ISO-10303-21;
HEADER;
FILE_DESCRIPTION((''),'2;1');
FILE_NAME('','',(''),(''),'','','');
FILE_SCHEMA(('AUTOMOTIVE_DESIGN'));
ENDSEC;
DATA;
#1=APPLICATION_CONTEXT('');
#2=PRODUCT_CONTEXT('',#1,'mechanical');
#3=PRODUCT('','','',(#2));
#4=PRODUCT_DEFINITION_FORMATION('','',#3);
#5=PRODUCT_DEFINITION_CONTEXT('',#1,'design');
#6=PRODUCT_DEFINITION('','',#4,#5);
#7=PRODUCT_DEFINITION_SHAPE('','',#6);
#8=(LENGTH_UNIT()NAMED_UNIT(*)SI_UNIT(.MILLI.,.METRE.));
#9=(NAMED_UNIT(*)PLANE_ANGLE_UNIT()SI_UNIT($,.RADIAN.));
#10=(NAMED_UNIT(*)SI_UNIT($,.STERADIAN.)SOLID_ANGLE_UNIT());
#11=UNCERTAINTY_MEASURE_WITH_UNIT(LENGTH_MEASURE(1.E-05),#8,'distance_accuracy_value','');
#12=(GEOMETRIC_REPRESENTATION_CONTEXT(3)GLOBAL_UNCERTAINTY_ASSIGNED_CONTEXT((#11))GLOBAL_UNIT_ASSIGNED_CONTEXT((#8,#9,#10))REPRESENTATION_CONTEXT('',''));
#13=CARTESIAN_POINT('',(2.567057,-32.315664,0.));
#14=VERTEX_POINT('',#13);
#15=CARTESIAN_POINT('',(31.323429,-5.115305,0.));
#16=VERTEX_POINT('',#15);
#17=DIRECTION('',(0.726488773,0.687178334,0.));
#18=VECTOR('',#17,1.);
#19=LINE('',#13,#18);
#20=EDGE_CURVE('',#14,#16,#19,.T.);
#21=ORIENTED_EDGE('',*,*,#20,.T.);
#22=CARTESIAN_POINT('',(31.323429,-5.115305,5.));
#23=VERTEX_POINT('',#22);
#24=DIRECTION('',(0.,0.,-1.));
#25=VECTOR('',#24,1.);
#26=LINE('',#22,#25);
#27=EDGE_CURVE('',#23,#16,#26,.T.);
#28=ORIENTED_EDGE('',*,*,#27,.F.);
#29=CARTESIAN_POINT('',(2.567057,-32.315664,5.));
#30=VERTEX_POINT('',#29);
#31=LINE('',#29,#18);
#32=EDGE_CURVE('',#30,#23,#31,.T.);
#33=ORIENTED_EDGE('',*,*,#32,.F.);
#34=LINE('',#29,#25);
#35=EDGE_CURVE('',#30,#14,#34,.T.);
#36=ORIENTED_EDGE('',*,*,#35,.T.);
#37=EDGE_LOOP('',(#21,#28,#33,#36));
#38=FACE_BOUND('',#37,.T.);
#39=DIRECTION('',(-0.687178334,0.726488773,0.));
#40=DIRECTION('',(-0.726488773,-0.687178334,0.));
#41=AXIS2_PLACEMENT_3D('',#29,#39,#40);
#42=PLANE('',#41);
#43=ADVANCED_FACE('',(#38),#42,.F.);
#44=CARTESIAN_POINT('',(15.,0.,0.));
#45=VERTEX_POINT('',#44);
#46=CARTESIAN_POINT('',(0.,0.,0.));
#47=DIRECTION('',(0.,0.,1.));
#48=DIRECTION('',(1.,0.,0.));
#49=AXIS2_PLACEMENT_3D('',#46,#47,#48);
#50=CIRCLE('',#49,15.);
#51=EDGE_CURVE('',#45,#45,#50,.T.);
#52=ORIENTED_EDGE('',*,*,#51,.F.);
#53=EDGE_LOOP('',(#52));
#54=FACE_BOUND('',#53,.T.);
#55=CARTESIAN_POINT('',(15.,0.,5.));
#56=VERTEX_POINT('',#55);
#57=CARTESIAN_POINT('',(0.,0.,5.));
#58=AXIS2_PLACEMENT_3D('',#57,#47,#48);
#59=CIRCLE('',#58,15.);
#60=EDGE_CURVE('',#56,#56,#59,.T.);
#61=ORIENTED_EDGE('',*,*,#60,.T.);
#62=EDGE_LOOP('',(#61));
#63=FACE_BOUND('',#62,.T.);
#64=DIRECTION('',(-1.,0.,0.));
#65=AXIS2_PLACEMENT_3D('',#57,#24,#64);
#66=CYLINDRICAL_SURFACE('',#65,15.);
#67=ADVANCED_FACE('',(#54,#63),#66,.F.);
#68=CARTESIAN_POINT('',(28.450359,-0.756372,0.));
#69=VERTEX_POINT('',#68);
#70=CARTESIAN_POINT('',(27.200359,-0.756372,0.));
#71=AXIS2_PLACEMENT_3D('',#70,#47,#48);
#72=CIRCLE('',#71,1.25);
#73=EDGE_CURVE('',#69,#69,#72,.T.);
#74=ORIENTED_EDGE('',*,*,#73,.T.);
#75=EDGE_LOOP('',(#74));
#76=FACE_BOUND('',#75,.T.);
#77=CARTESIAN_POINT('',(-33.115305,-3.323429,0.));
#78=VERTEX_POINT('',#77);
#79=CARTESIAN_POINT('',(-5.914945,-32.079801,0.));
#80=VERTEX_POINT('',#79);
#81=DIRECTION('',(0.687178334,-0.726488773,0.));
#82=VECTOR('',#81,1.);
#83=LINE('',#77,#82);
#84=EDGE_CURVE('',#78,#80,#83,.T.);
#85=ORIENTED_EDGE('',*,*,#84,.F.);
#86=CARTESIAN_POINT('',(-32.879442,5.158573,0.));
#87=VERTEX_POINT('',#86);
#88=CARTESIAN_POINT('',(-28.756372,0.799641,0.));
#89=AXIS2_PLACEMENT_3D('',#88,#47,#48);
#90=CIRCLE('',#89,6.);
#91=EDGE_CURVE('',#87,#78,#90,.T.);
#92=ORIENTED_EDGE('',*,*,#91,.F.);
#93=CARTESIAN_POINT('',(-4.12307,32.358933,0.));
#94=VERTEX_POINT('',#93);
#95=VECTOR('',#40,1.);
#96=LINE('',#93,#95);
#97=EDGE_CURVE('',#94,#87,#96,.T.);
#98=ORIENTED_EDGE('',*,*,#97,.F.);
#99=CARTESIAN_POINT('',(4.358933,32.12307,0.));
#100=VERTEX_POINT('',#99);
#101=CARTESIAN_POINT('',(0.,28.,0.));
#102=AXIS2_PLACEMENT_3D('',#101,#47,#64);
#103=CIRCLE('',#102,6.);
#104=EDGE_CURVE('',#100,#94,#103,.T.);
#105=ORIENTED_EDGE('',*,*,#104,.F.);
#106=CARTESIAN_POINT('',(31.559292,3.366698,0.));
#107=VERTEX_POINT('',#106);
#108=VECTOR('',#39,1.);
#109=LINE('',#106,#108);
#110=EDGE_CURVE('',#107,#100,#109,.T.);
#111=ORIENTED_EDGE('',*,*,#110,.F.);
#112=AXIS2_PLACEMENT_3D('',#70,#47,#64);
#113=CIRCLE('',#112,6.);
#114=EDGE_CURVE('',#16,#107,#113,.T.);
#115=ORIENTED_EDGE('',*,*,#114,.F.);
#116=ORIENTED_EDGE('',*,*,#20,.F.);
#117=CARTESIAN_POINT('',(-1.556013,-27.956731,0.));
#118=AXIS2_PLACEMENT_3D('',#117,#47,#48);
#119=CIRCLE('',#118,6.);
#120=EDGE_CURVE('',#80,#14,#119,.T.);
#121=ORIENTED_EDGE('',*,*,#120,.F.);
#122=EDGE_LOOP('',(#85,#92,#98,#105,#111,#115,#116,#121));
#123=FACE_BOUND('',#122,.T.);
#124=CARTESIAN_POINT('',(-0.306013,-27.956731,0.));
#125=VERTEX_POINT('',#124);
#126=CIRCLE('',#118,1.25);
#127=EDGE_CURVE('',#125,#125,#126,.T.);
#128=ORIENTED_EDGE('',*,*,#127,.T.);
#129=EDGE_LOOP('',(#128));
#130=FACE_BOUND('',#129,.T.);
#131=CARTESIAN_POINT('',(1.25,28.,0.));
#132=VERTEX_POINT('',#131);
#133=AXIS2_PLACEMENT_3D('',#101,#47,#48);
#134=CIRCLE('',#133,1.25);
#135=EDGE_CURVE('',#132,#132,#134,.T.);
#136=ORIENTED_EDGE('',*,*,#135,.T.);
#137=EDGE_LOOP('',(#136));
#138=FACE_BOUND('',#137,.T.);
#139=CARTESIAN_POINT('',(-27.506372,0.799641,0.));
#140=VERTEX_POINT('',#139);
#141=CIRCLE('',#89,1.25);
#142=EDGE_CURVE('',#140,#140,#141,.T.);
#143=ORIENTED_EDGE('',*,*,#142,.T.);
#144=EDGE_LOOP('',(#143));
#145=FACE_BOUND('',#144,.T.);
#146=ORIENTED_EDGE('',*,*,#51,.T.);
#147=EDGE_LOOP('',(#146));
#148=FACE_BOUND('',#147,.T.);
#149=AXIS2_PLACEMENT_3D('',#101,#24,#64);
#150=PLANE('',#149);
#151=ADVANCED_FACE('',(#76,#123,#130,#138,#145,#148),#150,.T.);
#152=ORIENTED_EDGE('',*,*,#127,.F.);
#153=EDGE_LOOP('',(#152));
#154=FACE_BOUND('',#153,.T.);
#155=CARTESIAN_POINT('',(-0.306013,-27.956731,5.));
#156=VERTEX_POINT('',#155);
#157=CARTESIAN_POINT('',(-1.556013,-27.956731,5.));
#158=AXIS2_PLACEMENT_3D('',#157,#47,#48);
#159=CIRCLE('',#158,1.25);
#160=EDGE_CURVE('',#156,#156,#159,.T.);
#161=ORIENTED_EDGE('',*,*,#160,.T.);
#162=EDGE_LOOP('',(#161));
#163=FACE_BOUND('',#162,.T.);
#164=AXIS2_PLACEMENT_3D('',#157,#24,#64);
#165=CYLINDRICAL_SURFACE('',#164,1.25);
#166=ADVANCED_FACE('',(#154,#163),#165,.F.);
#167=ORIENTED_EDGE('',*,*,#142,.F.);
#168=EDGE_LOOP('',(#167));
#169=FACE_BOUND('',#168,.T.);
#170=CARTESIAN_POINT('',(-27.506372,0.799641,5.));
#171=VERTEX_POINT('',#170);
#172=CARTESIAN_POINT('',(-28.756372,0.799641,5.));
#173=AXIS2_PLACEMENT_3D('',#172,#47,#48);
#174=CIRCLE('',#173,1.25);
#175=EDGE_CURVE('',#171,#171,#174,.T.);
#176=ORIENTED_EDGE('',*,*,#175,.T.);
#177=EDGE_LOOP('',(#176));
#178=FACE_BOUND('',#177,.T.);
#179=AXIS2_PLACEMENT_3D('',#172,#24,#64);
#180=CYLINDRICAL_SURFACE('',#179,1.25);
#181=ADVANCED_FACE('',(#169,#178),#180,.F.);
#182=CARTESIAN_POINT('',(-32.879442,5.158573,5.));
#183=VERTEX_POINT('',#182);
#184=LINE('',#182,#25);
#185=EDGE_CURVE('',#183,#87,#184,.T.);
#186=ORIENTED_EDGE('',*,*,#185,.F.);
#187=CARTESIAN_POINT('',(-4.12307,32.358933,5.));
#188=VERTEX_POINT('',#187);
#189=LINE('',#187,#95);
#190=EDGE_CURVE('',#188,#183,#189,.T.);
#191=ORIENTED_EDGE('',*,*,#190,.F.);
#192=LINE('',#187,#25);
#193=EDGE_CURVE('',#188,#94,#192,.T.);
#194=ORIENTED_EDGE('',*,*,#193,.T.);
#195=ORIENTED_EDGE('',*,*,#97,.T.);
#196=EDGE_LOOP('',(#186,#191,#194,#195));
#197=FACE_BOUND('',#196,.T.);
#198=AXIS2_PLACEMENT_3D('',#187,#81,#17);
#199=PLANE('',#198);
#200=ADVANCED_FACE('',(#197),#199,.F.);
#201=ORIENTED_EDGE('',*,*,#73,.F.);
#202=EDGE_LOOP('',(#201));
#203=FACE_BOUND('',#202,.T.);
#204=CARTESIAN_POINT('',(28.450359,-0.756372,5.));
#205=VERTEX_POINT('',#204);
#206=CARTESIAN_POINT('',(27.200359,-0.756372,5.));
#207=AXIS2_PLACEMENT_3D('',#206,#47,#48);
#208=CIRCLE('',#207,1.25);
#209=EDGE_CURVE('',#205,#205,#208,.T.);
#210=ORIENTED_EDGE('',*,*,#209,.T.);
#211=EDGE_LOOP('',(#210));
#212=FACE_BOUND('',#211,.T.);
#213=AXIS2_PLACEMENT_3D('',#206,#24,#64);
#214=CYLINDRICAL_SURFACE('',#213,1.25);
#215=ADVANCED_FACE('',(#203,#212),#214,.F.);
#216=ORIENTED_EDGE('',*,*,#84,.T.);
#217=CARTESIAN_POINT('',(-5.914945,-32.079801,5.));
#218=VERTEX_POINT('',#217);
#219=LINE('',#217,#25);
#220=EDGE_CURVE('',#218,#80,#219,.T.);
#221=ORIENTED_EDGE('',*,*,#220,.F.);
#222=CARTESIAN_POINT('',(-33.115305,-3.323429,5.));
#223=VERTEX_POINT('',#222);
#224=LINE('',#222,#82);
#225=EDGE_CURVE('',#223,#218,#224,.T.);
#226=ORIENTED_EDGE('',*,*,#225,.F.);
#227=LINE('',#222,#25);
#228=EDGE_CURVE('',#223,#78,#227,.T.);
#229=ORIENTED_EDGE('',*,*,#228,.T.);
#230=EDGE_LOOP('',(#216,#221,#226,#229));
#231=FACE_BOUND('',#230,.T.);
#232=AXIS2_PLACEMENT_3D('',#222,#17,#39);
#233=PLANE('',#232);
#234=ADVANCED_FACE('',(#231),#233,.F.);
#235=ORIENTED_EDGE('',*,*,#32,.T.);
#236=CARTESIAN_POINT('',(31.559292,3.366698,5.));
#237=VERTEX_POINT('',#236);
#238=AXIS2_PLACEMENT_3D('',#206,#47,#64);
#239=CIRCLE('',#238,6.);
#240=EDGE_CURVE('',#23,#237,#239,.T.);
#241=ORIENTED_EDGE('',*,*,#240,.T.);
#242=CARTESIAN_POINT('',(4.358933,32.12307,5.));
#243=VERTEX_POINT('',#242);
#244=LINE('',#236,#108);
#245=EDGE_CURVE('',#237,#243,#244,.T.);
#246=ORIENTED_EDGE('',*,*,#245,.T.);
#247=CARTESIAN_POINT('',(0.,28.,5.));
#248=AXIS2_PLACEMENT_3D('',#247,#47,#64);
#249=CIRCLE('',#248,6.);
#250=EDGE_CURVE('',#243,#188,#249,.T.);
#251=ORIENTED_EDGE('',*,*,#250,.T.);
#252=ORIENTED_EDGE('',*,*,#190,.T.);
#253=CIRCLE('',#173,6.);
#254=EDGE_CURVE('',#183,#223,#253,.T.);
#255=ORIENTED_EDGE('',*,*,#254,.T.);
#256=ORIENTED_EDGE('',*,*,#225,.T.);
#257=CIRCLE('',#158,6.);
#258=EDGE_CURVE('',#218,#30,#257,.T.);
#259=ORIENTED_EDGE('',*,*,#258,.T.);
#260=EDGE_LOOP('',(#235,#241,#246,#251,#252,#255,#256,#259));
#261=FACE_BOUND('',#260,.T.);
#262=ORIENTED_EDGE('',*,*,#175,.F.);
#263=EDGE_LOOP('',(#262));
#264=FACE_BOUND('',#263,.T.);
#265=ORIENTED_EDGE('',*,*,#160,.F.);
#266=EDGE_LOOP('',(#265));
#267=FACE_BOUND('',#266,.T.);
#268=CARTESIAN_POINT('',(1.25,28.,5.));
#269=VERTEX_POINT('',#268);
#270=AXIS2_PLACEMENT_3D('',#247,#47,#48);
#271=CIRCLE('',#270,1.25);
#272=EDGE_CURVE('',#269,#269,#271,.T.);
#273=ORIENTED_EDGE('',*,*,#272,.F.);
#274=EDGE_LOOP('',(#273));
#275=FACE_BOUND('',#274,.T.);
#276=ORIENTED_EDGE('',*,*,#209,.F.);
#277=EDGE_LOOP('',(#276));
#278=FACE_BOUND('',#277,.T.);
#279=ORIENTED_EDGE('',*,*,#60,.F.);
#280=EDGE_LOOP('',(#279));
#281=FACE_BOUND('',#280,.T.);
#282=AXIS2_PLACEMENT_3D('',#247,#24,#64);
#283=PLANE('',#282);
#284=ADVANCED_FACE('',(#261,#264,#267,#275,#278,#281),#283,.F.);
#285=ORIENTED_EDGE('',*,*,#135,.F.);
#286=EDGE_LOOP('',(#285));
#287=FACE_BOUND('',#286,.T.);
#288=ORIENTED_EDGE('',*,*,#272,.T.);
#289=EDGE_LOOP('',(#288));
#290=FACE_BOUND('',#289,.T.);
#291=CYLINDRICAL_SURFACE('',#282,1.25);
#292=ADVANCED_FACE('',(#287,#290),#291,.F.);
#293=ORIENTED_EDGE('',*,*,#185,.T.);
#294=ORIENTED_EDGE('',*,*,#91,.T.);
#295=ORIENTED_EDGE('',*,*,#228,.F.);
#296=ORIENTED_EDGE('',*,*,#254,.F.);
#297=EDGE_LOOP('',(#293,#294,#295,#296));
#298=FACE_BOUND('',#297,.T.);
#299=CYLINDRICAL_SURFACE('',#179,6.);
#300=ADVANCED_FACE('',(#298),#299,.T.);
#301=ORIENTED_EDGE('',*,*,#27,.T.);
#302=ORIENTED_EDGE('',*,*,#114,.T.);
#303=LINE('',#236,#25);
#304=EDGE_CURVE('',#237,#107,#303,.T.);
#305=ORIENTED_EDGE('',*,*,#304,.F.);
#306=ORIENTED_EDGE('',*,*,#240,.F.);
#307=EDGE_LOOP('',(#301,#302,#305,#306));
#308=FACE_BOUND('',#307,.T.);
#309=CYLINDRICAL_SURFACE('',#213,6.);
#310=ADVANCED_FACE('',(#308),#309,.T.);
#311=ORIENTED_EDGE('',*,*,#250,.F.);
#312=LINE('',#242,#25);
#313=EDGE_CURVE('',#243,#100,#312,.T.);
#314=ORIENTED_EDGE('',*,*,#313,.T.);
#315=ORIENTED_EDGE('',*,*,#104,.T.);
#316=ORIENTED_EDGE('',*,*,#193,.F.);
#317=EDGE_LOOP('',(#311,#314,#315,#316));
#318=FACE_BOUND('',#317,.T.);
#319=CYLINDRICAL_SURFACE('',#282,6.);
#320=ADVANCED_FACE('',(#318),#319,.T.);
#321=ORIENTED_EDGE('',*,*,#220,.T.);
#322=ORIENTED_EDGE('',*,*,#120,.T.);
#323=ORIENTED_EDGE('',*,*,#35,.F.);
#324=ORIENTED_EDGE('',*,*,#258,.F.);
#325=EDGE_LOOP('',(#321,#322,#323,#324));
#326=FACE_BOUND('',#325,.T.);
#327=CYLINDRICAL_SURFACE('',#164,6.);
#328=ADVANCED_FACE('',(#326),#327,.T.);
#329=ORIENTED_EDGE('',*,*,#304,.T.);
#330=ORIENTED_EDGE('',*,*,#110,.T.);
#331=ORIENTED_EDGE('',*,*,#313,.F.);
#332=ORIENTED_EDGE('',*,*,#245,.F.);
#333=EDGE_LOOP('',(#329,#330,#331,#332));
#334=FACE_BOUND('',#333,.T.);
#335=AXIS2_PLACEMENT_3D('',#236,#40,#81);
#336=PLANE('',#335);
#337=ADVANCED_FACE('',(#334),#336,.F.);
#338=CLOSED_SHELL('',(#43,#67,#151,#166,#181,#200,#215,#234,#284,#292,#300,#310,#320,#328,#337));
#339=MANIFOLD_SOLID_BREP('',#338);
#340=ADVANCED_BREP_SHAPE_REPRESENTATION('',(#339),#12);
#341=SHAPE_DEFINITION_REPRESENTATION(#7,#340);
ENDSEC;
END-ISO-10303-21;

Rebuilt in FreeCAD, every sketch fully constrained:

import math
import FreeCAD as App
import Part
import Sketcher
Q = App.Units.Quantity

doc = App.newDocument("Part")
body = doc.addObject("PartDesign::Body", "Body")

# Sketch on XY plane
sketch1 = doc.addObject("Sketcher::SketchObject", "Sketch")
body.addObject(sketch1)
sketch1.AttachmentSupport = (doc.XY_Plane, [""])
sketch1.MapMode = "FlatFace"
sketch1.addGeometry([
    Part.LineSegment(App.Vector(-33.1, -3.3, 0), App.Vector(-5.9, -32.1, 0)),  # 0
    Part.ArcOfCircle(Part.Circle(App.Vector(-1.6, -28, 0), App.Vector(0, 0, 1), 6), math.radians(-137), math.radians(-47)),  # 1
    Part.LineSegment(App.Vector(2.6, -32.3, 0), App.Vector(31.3, -5.1, 0)),  # 2
    Part.ArcOfCircle(Part.Circle(App.Vector(27.2, -0.8, 0), App.Vector(0, 0, 1), 6), math.radians(-47), math.radians(43)),  # 3
    Part.LineSegment(App.Vector(31.6, 3.4, 0), App.Vector(4.4, 32.1, 0)),  # 4
    Part.ArcOfCircle(Part.Circle(App.Vector(0, 28, 0), App.Vector(0, 0, 1), 6), math.radians(43), math.radians(133)),  # 5
    Part.LineSegment(App.Vector(-4.1, 32.4, 0), App.Vector(-32.9, 5.2, 0)),  # 6
    Part.ArcOfCircle(Part.Circle(App.Vector(-28.8, 0.8, 0), App.Vector(0, 0, 1), 6), math.radians(133), math.radians(223)),  # 7
    Part.Circle(App.Vector(-1.6, -28, 0), App.Vector(0, 0, 1), 1.2),  # 8
    Part.Circle(App.Vector(0, 0, 0), App.Vector(0, 0, 1), 15),  # 9
    Part.Circle(App.Vector(27.2, -0.8, 0), App.Vector(0, 0, 1), 1.2),  # 10
    Part.Circle(App.Vector(-28.8, 0.8, 0), App.Vector(0, 0, 1), 1.2),  # 11
    Part.Circle(App.Vector(0, 28, 0), App.Vector(0, 0, 1), 1.2),  # 12
], False)
sketch1.addConstraint([
    Sketcher.Constraint("Tangent", 0, 2, 1, 1),
    Sketcher.Constraint("Tangent", 1, 2, 2, 1),
    Sketcher.Constraint("Tangent", 2, 2, 3, 1),
    Sketcher.Constraint("Tangent", 3, 2, 4, 1),
    Sketcher.Constraint("Tangent", 4, 2, 5, 1),
    Sketcher.Constraint("Tangent", 5, 2, 6, 1),
    Sketcher.Constraint("Tangent", 6, 2, 7, 1),
    Sketcher.Constraint("Tangent", 7, 2, 0, 1),
    Sketcher.Constraint("Coincident", 9, 3, -1, 1),
    Sketcher.Constraint("Coincident", 8, 3, 1, 3),
    Sketcher.Constraint("Coincident", 10, 3, 3, 3),
    Sketcher.Constraint("Coincident", 11, 3, 7, 3),
    Sketcher.Constraint("Coincident", 12, 3, 5, 3),
    Sketcher.Constraint("Equal", 1, 3),
    Sketcher.Constraint("Equal", 3, 5),
    Sketcher.Constraint("Equal", 5, 7),
    Sketcher.Constraint("Equal", 8, 10),
    Sketcher.Constraint("Equal", 10, 11),
    Sketcher.Constraint("Equal", 11, 12),
    Sketcher.Constraint("PointOnObject", 5, 3, -2),
    Sketcher.Constraint("Perpendicular", 0, 2),
    Sketcher.Constraint("Perpendicular", 2, 4),
    Sketcher.Constraint("Perpendicular", 4, 6),
    Sketcher.Constraint("Equal", 0, 2),
    Sketcher.Constraint("Diameter", 9, Q("30 mm")),
    Sketcher.Constraint("Radius", 1, Q("6 mm")),
    Sketcher.Constraint("Diameter", 8, Q("2.5 mm")),
    Sketcher.Constraint("DistanceY", -1, 1, 5, 3, Q("28 mm")),
    Sketcher.Constraint("DistanceY", 0, 2, -1, 1, Q("32.079801 mm")),
    Sketcher.Constraint("DistanceY", -1, 1, 3, 2, Q("3.366698 mm")),
])
pad1 = doc.addObject("PartDesign::Pad", "Pad")
body.addObject(pad1)
pad1.Profile = sketch1
pad1.Length = 5

doc.recompute()
